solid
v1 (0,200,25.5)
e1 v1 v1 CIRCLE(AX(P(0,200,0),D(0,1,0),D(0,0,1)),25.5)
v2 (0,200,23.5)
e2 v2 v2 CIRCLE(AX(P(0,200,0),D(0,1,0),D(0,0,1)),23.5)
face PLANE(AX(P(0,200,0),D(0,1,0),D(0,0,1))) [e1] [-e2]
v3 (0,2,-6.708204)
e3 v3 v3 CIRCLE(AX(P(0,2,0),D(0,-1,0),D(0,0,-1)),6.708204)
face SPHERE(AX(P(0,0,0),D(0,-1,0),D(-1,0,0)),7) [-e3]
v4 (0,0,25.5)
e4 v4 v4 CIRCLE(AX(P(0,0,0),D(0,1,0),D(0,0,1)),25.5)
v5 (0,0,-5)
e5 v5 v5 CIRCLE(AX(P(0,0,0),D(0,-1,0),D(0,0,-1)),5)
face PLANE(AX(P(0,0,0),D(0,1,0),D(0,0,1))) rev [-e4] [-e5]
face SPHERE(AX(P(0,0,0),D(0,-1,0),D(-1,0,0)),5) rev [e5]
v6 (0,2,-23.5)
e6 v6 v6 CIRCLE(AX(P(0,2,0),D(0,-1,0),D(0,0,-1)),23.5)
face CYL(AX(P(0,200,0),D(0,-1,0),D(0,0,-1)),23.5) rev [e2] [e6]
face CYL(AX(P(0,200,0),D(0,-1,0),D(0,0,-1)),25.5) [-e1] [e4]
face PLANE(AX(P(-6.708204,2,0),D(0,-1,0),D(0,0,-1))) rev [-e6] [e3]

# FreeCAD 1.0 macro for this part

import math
import FreeCAD as App
import Part
import Sketcher

V = App.Vector

doc = App.newDocument("Part")
body = doc.addObject("PartDesign::Body", "Body")

# Sketch on XZ plane
sketch1 = doc.addObject("Sketcher::SketchObject", "Sketch")
body.addObject(sketch1)
sketch1.AttachmentSupport = (doc.XZ_Plane, [""])
sketch1.MapMode = "FlatFace"
sketch1.addGeometry([
    Part.Circle(V(0, 0, 0), V(0, 0, 1), 26),
    Part.Circle(V(0, 0, 0), V(0, 0, 1), 24),
], False)
sketch1.addConstraint([
    Sketcher.Constraint("Coincident", 0, 3, -1, 1),
    Sketcher.Constraint("Coincident", 1, 3, -1, 1),
    Sketcher.Constraint("Diameter", 0, 51.0),
    Sketcher.Constraint("Diameter", 1, 47.0),
])
pad1 = doc.addObject("PartDesign::Pad", "Pad")
body.addObject(pad1)
pad1.Profile = sketch1
pad1.Length = 200
pad1.Reversed = True

# Sketch on XY plane
sketch2 = doc.addObject("Sketcher::SketchObject", "Sketch001")
body.addObject(sketch2)
sketch2.AttachmentSupport = (doc.XY_Plane, [""])
sketch2.MapMode = "FlatFace"
sketch2.addGeometry([
    Part.LineSegment(V(-23.5, 0, 0), V(-5, 0, 0)),  # 0
    Part.ArcOfCircle(Part.Circle(V(0, 0, 0), V(0, 0, 1), 5), math.radians(90), math.radians(180)),  # 1
    Part.LineSegment(V(0, 5, 0), V(0, 7, 0)),  # 2
    Part.ArcOfCircle(Part.Circle(V(0, 0, 0), V(0, 0, 1), 7), math.radians(90), math.radians(163)),  # 3
    Part.LineSegment(V(-6.7, 2, 0), V(-23.5, 2, 0)),  # 4
    Part.LineSegment(V(-23.5, 2, 0), V(-23.5, 0, 0)),  # 5
], False)
sketch2.addConstraint([
    Sketcher.Constraint("Coincident", 0, 2, 1, 2),
    Sketcher.Constraint("Coincident", 1, 1, 2, 1),
    Sketcher.Constraint("Coincident", 2, 2, 3, 1),
    Sketcher.Constraint("Coincident", 3, 2, 4, 1),
    Sketcher.Constraint("Coincident", 4, 2, 5, 1),
    Sketcher.Constraint("Coincident", 5, 2, 0, 1),
    Sketcher.Constraint("Horizontal", 0),
    Sketcher.Constraint("Vertical", 2),
    Sketcher.Constraint("Horizontal", 4),
    Sketcher.Constraint("Vertical", 5),
    Sketcher.Constraint("Coincident", 1, 3, -1, 1),
    Sketcher.Constraint("Coincident", 3, 3, -1, 1),
    Sketcher.Constraint("PointOnObject", 0, 2, -1),
    Sketcher.Constraint("PointOnObject", 1, 1, -2),
    Sketcher.Constraint("Equal", 2, 5),
    Sketcher.Constraint("Radius", 1, 5.0),
    Sketcher.Constraint("Radius", 3, 7.0),
    Sketcher.Constraint("DistanceX", 0, 1, 0, 2, 18.5),
])
revolution = doc.addObject("PartDesign::Revolution", "Revolution")
body.addObject(revolution)
revolution.Profile = sketch2
revolution.ReferenceAxis = (sketch2, ["V_Axis"])
revolution.Angle = 360

doc.recompute()
